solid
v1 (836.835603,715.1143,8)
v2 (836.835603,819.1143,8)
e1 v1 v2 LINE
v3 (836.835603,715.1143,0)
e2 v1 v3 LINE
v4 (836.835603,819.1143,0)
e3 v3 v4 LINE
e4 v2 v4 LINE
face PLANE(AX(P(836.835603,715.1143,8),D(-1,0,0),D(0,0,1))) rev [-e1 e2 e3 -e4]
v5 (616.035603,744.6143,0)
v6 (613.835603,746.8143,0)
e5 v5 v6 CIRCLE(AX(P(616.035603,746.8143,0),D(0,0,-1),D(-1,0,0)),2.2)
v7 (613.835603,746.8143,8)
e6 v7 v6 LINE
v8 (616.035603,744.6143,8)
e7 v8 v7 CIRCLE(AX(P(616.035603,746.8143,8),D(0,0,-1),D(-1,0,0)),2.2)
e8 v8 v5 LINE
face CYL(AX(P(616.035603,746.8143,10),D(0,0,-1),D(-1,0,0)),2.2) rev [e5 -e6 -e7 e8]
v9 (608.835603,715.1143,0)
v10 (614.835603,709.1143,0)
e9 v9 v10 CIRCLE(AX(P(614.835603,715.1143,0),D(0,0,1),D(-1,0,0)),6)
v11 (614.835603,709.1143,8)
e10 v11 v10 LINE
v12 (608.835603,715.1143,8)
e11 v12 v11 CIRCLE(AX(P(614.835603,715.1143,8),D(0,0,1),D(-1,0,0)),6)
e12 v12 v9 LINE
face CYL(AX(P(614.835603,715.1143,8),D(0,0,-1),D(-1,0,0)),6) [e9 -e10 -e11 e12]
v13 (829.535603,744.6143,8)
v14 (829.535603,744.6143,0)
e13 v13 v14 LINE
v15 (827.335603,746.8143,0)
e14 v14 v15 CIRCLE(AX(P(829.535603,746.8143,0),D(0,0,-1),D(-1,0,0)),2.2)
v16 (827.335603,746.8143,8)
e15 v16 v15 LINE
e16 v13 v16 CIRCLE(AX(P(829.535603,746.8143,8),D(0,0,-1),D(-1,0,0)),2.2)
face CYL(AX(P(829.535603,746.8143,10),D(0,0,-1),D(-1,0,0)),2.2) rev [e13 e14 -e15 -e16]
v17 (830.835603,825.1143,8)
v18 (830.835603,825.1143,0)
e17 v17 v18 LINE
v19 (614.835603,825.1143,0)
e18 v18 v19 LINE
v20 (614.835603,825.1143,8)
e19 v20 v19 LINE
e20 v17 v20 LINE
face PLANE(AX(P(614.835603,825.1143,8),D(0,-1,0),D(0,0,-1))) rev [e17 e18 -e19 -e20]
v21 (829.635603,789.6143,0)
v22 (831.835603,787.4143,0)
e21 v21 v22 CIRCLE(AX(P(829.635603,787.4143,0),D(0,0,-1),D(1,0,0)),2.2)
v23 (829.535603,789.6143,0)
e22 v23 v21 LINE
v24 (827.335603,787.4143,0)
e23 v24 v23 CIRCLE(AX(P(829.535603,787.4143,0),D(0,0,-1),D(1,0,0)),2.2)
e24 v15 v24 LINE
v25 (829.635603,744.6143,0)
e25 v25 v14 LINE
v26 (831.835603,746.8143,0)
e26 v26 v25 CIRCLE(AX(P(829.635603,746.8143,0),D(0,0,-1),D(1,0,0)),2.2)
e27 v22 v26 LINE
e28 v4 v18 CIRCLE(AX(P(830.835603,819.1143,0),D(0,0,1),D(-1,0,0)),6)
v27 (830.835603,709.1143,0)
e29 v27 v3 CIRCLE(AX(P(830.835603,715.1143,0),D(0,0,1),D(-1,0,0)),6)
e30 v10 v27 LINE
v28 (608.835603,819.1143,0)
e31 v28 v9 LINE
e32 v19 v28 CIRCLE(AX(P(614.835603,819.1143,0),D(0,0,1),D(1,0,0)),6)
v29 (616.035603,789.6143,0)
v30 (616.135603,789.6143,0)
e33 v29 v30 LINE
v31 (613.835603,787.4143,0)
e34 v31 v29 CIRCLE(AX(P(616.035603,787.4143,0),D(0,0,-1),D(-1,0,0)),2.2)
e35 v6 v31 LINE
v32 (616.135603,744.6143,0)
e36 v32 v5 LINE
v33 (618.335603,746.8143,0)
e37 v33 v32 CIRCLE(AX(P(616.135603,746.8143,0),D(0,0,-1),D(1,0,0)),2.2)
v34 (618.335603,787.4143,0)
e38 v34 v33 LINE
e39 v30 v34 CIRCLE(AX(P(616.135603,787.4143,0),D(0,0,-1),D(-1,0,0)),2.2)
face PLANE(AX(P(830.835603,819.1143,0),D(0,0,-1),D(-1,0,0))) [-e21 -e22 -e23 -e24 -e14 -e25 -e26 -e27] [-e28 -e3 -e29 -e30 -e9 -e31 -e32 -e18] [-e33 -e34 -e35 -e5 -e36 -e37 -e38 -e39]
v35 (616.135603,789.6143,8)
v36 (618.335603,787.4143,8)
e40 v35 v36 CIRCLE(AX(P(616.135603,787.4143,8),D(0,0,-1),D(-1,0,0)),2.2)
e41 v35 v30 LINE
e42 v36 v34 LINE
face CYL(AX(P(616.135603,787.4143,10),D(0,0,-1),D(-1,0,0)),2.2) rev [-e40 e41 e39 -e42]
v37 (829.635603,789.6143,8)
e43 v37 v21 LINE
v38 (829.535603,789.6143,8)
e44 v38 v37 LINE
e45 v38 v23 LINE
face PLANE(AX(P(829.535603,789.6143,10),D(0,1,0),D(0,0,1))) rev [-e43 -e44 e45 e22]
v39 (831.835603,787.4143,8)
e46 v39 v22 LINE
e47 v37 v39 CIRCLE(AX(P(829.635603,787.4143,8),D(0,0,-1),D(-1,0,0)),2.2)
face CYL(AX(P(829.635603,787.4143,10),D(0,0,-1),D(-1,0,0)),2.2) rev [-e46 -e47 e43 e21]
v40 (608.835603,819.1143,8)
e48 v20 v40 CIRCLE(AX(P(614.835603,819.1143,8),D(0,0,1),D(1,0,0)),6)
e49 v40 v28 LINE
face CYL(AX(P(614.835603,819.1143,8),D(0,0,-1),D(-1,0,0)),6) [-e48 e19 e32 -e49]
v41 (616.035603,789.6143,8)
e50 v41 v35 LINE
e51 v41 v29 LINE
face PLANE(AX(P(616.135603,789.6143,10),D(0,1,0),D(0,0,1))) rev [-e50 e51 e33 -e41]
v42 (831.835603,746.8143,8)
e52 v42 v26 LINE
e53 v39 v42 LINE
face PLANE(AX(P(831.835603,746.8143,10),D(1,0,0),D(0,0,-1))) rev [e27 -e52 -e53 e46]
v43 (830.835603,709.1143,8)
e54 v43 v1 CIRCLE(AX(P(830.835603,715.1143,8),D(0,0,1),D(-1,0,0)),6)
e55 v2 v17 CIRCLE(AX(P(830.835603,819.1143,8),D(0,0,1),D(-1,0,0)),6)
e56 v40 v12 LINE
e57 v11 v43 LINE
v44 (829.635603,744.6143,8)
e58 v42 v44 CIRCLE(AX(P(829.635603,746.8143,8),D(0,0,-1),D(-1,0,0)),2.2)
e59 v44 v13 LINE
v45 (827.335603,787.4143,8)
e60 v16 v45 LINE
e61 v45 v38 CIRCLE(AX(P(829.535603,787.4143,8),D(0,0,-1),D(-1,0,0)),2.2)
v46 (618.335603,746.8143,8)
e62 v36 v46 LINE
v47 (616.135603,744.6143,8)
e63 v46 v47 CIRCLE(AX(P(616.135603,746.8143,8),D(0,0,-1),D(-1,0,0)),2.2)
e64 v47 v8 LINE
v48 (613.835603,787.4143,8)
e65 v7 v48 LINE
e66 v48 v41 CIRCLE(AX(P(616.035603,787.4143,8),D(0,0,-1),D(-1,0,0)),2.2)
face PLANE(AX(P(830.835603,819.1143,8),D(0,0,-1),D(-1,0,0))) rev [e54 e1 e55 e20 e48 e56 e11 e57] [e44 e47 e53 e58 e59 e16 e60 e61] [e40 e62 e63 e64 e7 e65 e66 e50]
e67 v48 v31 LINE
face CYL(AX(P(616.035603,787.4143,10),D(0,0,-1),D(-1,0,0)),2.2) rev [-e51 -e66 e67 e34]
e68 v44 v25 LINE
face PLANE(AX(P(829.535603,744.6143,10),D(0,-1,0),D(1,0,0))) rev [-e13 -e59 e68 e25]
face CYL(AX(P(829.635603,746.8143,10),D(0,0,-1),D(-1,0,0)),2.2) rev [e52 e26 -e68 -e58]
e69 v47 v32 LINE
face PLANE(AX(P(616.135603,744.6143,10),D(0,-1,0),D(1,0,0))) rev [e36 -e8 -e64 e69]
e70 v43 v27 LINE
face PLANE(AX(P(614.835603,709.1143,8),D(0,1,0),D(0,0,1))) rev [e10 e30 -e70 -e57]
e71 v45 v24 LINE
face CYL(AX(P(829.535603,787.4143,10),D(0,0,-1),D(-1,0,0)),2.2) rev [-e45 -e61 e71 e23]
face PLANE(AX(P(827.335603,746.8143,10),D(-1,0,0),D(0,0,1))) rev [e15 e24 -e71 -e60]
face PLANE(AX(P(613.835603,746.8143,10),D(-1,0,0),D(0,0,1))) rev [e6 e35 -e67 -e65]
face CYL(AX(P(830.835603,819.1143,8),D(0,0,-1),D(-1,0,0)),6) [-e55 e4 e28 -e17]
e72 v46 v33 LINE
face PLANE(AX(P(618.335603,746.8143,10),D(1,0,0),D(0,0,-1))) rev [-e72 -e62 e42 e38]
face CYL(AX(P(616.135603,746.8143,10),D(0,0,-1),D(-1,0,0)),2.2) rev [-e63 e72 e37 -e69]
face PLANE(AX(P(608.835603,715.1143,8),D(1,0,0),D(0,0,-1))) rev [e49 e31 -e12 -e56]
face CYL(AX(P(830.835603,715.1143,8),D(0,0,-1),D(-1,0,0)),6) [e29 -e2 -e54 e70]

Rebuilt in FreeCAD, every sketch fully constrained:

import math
import FreeCAD as App
import Part
import Sketcher

V = App.Vector
Q = App.Units.Quantity

doc = App.newDocument("Part")
params = doc.addObject("Spreadsheet::Sheet", "Params")
for row, (alias, value) in enumerate([
    ("sketch1_radius", "6 mm"),
    ("sketch1_width", "216 mm"),
    ("sketch1_height", "104 mm"),
    ("pad1_length", "8 mm"),
    ("sketch2_radius", "2.2 mm"),
    ("sketch2_width", "0.1 mm"),
    ("sketch2_height", "40.6 mm"),
    ("pocket1_length", "10 mm"),
], start=1):
    params.set(f"A{row}", alias)
    params.set(f"B{row}", "=" + value)
    params.setAlias(f"B{row}", alias)

body = doc.addObject("PartDesign::Body", "Body")

# Sketch on XY plane
sketch1 = doc.addObject("Sketcher::SketchObject", "Sketch")
body.addObject(sketch1)
sketch1.AttachmentSupport = (doc.XY_Plane, [""])
sketch1.MapMode = "FlatFace"
sketch1.addGeometry(Part.LineSegment(V(615, 709, 0), V(831, 709, 0)), False)
sketch1.addGeometry(Part.ArcOfCircle(Part.Circle(V(831, 715, 0), V(0, 0, 1), 6), math.radians(-90), math.radians(0)), False)
sketch1.addGeometry(Part.LineSegment(V(837, 715, 0), V(837, 819, 0)), False)
sketch1.addGeometry(Part.ArcOfCircle(Part.Circle(V(831, 819, 0), V(0, 0, 1), 6), math.radians(0), math.radians(90)), False)
sketch1.addGeometry(Part.LineSegment(V(831, 825, 0), V(615, 825, 0)), False)
sketch1.addGeometry(Part.ArcOfCircle(Part.Circle(V(615, 819, 0), V(0, 0, 1), 6), math.radians(90), math.radians(180)), False)
sketch1.addGeometry(Part.LineSegment(V(609, 819, 0), V(609, 715, 0)), False)
sketch1.addGeometry(Part.ArcOfCircle(Part.Circle(V(615, 715, 0), V(0, 0, 1), 6), math.radians(180), math.radians(270)), False)
sketch1.addConstraint(Sketcher.Constraint("Tangent", 0, 2, 1, 1))
sketch1.addConstraint(Sketcher.Constraint("Tangent", 1, 2, 2, 1))
sketch1.addConstraint(Sketcher.Constraint("Tangent", 2, 2, 3, 1))
sketch1.addConstraint(Sketcher.Constraint("Tangent", 3, 2, 4, 1))
sketch1.addConstraint(Sketcher.Constraint("Tangent", 4, 2, 5, 1))
sketch1.addConstraint(Sketcher.Constraint("Tangent", 5, 2, 6, 1))
sketch1.addConstraint(Sketcher.Constraint("Tangent", 6, 2, 7, 1))
sketch1.addConstraint(Sketcher.Constraint("Tangent", 7, 2, 0, 1))
sketch1.addConstraint(Sketcher.Constraint("Horizontal", 0))
sketch1.addConstraint(Sketcher.Constraint("Vertical", 2))
sketch1.addConstraint(Sketcher.Constraint("Horizontal", 4))
sketch1.addConstraint(Sketcher.Constraint("Vertical", 6))
sketch1.addConstraint(Sketcher.Constraint("Equal", 1, 3))
sketch1.addConstraint(Sketcher.Constraint("Equal", 3, 5))
sketch1.addConstraint(Sketcher.Constraint("Equal", 5, 7))
sketch1.addConstraint(Sketcher.Constraint("Radius", 1, Q("6 mm")))
sketch1.addConstraint(Sketcher.Constraint("DistanceX", 0, 1, 0, 2, Q("216 mm")))
sketch1.addConstraint(Sketcher.Constraint("DistanceY", 2, 1, 2, 2, Q("104 mm")))
sketch1.addConstraint(Sketcher.Constraint("DistanceY", -1, 1, 1, 3, Q("715.1143 mm")))
sketch1.addConstraint(Sketcher.Constraint("DistanceX", -1, 1, 1, 3, Q("830.835603 mm")))
sketch1.setExpression("Constraints[15]", "Params.sketch1_radius")
sketch1.setExpression("Constraints[16]", "Params.sketch1_width")
sketch1.setExpression("Constraints[17]", "Params.sketch1_height")
pad1 = doc.addObject("PartDesign::Pad", "Pad")
body.addObject(pad1)
pad1.Profile = sketch1
pad1.setExpression("Length", "Params.pad1_length")

# Sketch on XY plane
sketch2 = doc.addObject("Sketcher::SketchObject", "Sketch001")
body.addObject(sketch2)
sketch2.AttachmentSupport = (doc.XY_Plane, [""])
sketch2.MapMode = "FlatFace"
sketch2.addGeometry(Part.LineSegment(V(616.14, 744.61, 0), V(616.04, 744.61, 0)), False)
sketch2.addGeometry(Part.ArcOfCircle(Part.Circle(V(616.04, 746.81, 0), V(0, 0, 1), 2.2), math.radians(180), math.radians(270)), False)
sketch2.addGeometry(Part.LineSegment(V(613.84, 746.81, 0), V(613.84, 787.41, 0)), False)
sketch2.addGeometry(Part.ArcOfCircle(Part.Circle(V(616.04, 787.41, 0), V(0, 0, 1), 2.2), math.radians(90), math.radians(180)), False)
sketch2.addGeometry(Part.LineSegment(V(616.04, 789.61, 0), V(616.14, 789.61, 0)), False)
sketch2.addGeometry(Part.ArcOfCircle(Part.Circle(V(616.14, 787.41, 0), V(0, 0, 1), 2.2), math.radians(0), math.radians(90)), False)
sketch2.addGeometry(Part.LineSegment(V(618.34, 787.41, 0), V(618.34, 746.81, 0)), False)
sketch2.addGeometry(Part.ArcOfCircle(Part.Circle(V(616.14, 746.81, 0), V(0, 0, 1), 2.2), math.radians(-90), math.radians(0)), False)
sketch2.addGeometry(Part.LineSegment(V(829.54, 789.61, 0), V(829.64, 789.61, 0)), False)
sketch2.addGeometry(Part.ArcOfCircle(Part.Circle(V(829.64, 787.41, 0), V(0, 0, 1), 2.2), math.radians(0), math.radians(90)), False)
sketch2.addGeometry(Part.LineSegment(V(831.84, 787.41, 0), V(831.84, 746.81, 0)), False)
sketch2.addGeometry(Part.ArcOfCircle(Part.Circle(V(829.64, 746.81, 0), V(0, 0, 1), 2.2), math.radians(-90), math.radians(0)), False)
sketch2.addGeometry(Part.LineSegment(V(829.64, 744.61, 0), V(829.54, 744.61, 0)), False)
sketch2.addGeometry(Part.ArcOfCircle(Part.Circle(V(829.54, 746.81, 0), V(0, 0, 1), 2.2), math.radians(180), math.radians(270)), False)
sketch2.addGeometry(Part.LineSegment(V(827.34, 746.81, 0), V(827.34, 787.41, 0)), False)
sketch2.addGeometry(Part.ArcOfCircle(Part.Circle(V(829.54, 787.41, 0), V(0, 0, 1), 2.2), math.radians(90), math.radians(180)), False)
sketch2.addConstraint(Sketcher.Constraint("Tangent", 0, 2, 1, 2))
sketch2.addConstraint(Sketcher.Constraint("Tangent", 1, 1, 2, 1))
sketch2.addConstraint(Sketcher.Constraint("Tangent", 2, 2, 3, 2))
sketch2.addConstraint(Sketcher.Constraint("Tangent", 3, 1, 4, 1))
sketch2.addConstraint(Sketcher.Constraint("Tangent", 4, 2, 5, 2))
sketch2.addConstraint(Sketcher.Constraint("Tangent", 5, 1, 6, 1))
sketch2.addConstraint(Sketcher.Constraint("Tangent", 6, 2, 7, 2))
sketch2.addConstraint(Sketcher.Constraint("Tangent", 7, 1, 0, 1))
sketch2.addConstraint(Sketcher.Constraint("Tangent", 8, 2, 9, 2))
sketch2.addConstraint(Sketcher.Constraint("Tangent", 9, 1, 10, 1))
sketch2.addConstraint(Sketcher.Constraint("Tangent", 10, 2, 11, 2))
sketch2.addConstraint(Sketcher.Constraint("Tangent", 11, 1, 12, 1))
sketch2.addConstraint(Sketcher.Constraint("Tangent", 12, 2, 13, 2))
sketch2.addConstraint(Sketcher.Constraint("Tangent", 13, 1, 14, 1))
sketch2.addConstraint(Sketcher.Constraint("Tangent", 14, 2, 15, 2))
sketch2.addConstraint(Sketcher.Constraint("Tangent", 15, 1, 8, 1))
sketch2.addConstraint(Sketcher.Constraint("Horizontal", 0))
sketch2.addConstraint(Sketcher.Constraint("Vertical", 2))
sketch2.addConstraint(Sketcher.Constraint("Horizontal", 4))
sketch2.addConstraint(Sketcher.Constraint("Vertical", 6))
sketch2.addConstraint(Sketcher.Constraint("Horizontal", 8))
sketch2.addConstraint(Sketcher.Constraint("Vertical", 10))
sketch2.addConstraint(Sketcher.Constraint("Horizontal", 12))
sketch2.addConstraint(Sketcher.Constraint("Vertical", 14))
sketch2.addConstraint(Sketcher.Constraint("Equal", 1, 3))
sketch2.addConstraint(Sketcher.Constraint("Equal", 3, 5))
sketch2.addConstraint(Sketcher.Constraint("Equal", 5, 7))
sketch2.addConstraint(Sketcher.Constraint("Equal", 7, 9))
sketch2.addConstraint(Sketcher.Constraint("Equal", 9, 11))
sketch2.addConstraint(Sketcher.Constraint("Equal", 11, 13))
sketch2.addConstraint(Sketcher.Constraint("Equal", 13, 15))
sketch2.addConstraint(Sketcher.Constraint("Horizontal", 5, 3, 9, 3))
sketch2.addConstraint(Sketcher.Constraint("Horizontal", 7, 3, 11, 3))
sketch2.addConstraint(Sketcher.Constraint("Equal", 4, 8))
sketch2.addConstraint(Sketcher.Constraint("Radius", 1, Q("2.2 mm")))
sketch2.addConstraint(Sketcher.Constraint("DistanceX", 0, 2, 0, 1, Q("0.1 mm")))
sketch2.addConstraint(Sketcher.Constraint("DistanceY", 2, 1, 2, 2, Q("40.6 mm")))
sketch2.addConstraint(Sketcher.Constraint("DistanceX", 5, 3, 9, 3, Q("213.5 mm")))
sketch2.addConstraint(Sketcher.Constraint("DistanceY", -1, 1, 1, 3, Q("746.8143 mm")))
sketch2.addConstraint(Sketcher.Constraint("DistanceX", -1, 1, 1, 3, Q("616.035603 mm")))
sketch2.setExpression("Constraints[34]", "Params.sketch2_radius")
sketch2.setExpression("Constraints[35]", "Params.sketch2_width")
sketch2.setExpression("Constraints[36]", "Params.sketch2_height")
pocket1 = doc.addObject("PartDesign::Pocket", "Pocket")
body.addObject(pocket1)
pocket1.Profile = sketch2
pocket1.setExpression("Length", "Params.pocket1_length")
pocket1.Reversed = True

doc.recompute()
